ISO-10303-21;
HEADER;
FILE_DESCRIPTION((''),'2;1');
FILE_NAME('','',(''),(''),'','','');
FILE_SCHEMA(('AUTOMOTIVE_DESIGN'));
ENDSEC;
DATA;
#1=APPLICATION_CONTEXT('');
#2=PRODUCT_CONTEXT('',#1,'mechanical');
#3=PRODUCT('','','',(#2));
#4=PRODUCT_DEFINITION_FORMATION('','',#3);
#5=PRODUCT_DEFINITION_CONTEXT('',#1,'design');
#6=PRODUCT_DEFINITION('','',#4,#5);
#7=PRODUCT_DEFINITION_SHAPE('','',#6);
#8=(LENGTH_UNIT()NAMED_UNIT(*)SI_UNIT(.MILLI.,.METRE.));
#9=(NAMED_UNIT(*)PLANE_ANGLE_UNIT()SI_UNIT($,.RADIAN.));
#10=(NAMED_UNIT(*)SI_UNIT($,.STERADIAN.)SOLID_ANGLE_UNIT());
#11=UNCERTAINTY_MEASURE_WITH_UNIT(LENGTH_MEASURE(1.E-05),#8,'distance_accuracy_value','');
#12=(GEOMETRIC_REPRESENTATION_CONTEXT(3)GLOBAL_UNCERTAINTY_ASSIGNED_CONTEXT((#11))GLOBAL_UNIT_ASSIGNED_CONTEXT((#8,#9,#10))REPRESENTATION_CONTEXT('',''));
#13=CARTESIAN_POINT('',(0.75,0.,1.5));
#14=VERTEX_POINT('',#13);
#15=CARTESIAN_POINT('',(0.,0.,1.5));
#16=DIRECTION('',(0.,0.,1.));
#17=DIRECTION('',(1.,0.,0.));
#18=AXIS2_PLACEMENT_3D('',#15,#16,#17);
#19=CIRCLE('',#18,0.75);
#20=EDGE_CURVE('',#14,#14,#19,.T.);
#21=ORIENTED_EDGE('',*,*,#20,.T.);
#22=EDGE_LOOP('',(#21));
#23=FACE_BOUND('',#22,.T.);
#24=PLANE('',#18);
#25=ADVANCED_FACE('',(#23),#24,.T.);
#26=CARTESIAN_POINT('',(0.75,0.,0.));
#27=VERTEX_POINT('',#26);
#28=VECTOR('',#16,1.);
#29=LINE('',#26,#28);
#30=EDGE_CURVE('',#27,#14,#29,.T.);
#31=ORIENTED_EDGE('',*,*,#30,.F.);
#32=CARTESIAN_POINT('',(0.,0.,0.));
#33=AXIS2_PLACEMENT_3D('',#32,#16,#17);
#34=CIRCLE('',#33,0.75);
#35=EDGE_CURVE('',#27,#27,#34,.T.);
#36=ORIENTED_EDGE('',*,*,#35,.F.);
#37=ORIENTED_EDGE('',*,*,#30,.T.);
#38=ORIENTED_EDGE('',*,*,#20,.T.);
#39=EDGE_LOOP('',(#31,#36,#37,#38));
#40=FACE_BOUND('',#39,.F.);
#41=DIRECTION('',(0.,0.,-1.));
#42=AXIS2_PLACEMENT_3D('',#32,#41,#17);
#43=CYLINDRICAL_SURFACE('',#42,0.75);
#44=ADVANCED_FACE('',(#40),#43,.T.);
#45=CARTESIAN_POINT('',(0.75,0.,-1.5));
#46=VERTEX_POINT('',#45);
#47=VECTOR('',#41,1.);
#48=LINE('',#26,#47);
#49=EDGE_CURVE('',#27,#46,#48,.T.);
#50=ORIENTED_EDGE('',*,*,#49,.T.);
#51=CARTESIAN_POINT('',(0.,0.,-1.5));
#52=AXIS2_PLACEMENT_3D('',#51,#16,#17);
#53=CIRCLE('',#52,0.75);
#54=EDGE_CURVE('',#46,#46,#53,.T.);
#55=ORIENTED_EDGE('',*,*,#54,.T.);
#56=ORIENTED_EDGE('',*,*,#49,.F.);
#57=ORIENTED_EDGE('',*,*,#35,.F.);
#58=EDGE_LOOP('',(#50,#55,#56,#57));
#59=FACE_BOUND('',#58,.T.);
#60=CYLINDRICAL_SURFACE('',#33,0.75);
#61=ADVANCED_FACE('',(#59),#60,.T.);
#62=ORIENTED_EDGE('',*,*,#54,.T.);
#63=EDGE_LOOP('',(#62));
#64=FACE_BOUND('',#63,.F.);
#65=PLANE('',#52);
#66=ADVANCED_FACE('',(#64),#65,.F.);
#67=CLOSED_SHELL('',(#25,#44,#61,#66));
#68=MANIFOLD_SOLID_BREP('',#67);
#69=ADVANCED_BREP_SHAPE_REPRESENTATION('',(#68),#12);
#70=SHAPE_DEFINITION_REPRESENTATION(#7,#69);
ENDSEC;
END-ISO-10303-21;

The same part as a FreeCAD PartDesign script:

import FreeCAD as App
import Part
import Sketcher

doc = App.newDocument("Part")
params = doc.addObject("Spreadsheet::Sheet", "Params")
for row, (alias, value) in enumerate([
    ("sketch1_diameter", "1.5 mm"),
    ("pad1_length", "3 mm"),
], start=1):
    params.set(f"A{row}", alias)
    params.set(f"B{row}", "=" + value)
    params.setAlias(f"B{row}", alias)

body = doc.addObject("PartDesign::Body", "Body")

# Sketch on XY plane
sketch1 = body.newObject("Sketcher::SketchObject", "Sketch")
sketch1.AttachmentSupport = (doc.getObject("XY_Plane"), [""])
sketch1.MapMode = "FlatFace"
sketch1.addGeometry(Part.Circle(App.Vector(0, 0, 0), App.Vector(0, 0, 1), 0.8), False)
sketch1.addConstraint(Sketcher.Constraint("Coincident", 0, 3, -1, 1))
sketch1.addConstraint(Sketcher.Constraint("Diameter", 0, 1.5))
sketch1.setExpression("Constraints[1]", "Params.sketch1_diameter")
pad1 = body.newObject("PartDesign::Pad", "Pad")
pad1.Profile = sketch1
pad1.setExpression("Length", "Params.pad1_length")
pad1.Midplane = True

doc.recompute()
